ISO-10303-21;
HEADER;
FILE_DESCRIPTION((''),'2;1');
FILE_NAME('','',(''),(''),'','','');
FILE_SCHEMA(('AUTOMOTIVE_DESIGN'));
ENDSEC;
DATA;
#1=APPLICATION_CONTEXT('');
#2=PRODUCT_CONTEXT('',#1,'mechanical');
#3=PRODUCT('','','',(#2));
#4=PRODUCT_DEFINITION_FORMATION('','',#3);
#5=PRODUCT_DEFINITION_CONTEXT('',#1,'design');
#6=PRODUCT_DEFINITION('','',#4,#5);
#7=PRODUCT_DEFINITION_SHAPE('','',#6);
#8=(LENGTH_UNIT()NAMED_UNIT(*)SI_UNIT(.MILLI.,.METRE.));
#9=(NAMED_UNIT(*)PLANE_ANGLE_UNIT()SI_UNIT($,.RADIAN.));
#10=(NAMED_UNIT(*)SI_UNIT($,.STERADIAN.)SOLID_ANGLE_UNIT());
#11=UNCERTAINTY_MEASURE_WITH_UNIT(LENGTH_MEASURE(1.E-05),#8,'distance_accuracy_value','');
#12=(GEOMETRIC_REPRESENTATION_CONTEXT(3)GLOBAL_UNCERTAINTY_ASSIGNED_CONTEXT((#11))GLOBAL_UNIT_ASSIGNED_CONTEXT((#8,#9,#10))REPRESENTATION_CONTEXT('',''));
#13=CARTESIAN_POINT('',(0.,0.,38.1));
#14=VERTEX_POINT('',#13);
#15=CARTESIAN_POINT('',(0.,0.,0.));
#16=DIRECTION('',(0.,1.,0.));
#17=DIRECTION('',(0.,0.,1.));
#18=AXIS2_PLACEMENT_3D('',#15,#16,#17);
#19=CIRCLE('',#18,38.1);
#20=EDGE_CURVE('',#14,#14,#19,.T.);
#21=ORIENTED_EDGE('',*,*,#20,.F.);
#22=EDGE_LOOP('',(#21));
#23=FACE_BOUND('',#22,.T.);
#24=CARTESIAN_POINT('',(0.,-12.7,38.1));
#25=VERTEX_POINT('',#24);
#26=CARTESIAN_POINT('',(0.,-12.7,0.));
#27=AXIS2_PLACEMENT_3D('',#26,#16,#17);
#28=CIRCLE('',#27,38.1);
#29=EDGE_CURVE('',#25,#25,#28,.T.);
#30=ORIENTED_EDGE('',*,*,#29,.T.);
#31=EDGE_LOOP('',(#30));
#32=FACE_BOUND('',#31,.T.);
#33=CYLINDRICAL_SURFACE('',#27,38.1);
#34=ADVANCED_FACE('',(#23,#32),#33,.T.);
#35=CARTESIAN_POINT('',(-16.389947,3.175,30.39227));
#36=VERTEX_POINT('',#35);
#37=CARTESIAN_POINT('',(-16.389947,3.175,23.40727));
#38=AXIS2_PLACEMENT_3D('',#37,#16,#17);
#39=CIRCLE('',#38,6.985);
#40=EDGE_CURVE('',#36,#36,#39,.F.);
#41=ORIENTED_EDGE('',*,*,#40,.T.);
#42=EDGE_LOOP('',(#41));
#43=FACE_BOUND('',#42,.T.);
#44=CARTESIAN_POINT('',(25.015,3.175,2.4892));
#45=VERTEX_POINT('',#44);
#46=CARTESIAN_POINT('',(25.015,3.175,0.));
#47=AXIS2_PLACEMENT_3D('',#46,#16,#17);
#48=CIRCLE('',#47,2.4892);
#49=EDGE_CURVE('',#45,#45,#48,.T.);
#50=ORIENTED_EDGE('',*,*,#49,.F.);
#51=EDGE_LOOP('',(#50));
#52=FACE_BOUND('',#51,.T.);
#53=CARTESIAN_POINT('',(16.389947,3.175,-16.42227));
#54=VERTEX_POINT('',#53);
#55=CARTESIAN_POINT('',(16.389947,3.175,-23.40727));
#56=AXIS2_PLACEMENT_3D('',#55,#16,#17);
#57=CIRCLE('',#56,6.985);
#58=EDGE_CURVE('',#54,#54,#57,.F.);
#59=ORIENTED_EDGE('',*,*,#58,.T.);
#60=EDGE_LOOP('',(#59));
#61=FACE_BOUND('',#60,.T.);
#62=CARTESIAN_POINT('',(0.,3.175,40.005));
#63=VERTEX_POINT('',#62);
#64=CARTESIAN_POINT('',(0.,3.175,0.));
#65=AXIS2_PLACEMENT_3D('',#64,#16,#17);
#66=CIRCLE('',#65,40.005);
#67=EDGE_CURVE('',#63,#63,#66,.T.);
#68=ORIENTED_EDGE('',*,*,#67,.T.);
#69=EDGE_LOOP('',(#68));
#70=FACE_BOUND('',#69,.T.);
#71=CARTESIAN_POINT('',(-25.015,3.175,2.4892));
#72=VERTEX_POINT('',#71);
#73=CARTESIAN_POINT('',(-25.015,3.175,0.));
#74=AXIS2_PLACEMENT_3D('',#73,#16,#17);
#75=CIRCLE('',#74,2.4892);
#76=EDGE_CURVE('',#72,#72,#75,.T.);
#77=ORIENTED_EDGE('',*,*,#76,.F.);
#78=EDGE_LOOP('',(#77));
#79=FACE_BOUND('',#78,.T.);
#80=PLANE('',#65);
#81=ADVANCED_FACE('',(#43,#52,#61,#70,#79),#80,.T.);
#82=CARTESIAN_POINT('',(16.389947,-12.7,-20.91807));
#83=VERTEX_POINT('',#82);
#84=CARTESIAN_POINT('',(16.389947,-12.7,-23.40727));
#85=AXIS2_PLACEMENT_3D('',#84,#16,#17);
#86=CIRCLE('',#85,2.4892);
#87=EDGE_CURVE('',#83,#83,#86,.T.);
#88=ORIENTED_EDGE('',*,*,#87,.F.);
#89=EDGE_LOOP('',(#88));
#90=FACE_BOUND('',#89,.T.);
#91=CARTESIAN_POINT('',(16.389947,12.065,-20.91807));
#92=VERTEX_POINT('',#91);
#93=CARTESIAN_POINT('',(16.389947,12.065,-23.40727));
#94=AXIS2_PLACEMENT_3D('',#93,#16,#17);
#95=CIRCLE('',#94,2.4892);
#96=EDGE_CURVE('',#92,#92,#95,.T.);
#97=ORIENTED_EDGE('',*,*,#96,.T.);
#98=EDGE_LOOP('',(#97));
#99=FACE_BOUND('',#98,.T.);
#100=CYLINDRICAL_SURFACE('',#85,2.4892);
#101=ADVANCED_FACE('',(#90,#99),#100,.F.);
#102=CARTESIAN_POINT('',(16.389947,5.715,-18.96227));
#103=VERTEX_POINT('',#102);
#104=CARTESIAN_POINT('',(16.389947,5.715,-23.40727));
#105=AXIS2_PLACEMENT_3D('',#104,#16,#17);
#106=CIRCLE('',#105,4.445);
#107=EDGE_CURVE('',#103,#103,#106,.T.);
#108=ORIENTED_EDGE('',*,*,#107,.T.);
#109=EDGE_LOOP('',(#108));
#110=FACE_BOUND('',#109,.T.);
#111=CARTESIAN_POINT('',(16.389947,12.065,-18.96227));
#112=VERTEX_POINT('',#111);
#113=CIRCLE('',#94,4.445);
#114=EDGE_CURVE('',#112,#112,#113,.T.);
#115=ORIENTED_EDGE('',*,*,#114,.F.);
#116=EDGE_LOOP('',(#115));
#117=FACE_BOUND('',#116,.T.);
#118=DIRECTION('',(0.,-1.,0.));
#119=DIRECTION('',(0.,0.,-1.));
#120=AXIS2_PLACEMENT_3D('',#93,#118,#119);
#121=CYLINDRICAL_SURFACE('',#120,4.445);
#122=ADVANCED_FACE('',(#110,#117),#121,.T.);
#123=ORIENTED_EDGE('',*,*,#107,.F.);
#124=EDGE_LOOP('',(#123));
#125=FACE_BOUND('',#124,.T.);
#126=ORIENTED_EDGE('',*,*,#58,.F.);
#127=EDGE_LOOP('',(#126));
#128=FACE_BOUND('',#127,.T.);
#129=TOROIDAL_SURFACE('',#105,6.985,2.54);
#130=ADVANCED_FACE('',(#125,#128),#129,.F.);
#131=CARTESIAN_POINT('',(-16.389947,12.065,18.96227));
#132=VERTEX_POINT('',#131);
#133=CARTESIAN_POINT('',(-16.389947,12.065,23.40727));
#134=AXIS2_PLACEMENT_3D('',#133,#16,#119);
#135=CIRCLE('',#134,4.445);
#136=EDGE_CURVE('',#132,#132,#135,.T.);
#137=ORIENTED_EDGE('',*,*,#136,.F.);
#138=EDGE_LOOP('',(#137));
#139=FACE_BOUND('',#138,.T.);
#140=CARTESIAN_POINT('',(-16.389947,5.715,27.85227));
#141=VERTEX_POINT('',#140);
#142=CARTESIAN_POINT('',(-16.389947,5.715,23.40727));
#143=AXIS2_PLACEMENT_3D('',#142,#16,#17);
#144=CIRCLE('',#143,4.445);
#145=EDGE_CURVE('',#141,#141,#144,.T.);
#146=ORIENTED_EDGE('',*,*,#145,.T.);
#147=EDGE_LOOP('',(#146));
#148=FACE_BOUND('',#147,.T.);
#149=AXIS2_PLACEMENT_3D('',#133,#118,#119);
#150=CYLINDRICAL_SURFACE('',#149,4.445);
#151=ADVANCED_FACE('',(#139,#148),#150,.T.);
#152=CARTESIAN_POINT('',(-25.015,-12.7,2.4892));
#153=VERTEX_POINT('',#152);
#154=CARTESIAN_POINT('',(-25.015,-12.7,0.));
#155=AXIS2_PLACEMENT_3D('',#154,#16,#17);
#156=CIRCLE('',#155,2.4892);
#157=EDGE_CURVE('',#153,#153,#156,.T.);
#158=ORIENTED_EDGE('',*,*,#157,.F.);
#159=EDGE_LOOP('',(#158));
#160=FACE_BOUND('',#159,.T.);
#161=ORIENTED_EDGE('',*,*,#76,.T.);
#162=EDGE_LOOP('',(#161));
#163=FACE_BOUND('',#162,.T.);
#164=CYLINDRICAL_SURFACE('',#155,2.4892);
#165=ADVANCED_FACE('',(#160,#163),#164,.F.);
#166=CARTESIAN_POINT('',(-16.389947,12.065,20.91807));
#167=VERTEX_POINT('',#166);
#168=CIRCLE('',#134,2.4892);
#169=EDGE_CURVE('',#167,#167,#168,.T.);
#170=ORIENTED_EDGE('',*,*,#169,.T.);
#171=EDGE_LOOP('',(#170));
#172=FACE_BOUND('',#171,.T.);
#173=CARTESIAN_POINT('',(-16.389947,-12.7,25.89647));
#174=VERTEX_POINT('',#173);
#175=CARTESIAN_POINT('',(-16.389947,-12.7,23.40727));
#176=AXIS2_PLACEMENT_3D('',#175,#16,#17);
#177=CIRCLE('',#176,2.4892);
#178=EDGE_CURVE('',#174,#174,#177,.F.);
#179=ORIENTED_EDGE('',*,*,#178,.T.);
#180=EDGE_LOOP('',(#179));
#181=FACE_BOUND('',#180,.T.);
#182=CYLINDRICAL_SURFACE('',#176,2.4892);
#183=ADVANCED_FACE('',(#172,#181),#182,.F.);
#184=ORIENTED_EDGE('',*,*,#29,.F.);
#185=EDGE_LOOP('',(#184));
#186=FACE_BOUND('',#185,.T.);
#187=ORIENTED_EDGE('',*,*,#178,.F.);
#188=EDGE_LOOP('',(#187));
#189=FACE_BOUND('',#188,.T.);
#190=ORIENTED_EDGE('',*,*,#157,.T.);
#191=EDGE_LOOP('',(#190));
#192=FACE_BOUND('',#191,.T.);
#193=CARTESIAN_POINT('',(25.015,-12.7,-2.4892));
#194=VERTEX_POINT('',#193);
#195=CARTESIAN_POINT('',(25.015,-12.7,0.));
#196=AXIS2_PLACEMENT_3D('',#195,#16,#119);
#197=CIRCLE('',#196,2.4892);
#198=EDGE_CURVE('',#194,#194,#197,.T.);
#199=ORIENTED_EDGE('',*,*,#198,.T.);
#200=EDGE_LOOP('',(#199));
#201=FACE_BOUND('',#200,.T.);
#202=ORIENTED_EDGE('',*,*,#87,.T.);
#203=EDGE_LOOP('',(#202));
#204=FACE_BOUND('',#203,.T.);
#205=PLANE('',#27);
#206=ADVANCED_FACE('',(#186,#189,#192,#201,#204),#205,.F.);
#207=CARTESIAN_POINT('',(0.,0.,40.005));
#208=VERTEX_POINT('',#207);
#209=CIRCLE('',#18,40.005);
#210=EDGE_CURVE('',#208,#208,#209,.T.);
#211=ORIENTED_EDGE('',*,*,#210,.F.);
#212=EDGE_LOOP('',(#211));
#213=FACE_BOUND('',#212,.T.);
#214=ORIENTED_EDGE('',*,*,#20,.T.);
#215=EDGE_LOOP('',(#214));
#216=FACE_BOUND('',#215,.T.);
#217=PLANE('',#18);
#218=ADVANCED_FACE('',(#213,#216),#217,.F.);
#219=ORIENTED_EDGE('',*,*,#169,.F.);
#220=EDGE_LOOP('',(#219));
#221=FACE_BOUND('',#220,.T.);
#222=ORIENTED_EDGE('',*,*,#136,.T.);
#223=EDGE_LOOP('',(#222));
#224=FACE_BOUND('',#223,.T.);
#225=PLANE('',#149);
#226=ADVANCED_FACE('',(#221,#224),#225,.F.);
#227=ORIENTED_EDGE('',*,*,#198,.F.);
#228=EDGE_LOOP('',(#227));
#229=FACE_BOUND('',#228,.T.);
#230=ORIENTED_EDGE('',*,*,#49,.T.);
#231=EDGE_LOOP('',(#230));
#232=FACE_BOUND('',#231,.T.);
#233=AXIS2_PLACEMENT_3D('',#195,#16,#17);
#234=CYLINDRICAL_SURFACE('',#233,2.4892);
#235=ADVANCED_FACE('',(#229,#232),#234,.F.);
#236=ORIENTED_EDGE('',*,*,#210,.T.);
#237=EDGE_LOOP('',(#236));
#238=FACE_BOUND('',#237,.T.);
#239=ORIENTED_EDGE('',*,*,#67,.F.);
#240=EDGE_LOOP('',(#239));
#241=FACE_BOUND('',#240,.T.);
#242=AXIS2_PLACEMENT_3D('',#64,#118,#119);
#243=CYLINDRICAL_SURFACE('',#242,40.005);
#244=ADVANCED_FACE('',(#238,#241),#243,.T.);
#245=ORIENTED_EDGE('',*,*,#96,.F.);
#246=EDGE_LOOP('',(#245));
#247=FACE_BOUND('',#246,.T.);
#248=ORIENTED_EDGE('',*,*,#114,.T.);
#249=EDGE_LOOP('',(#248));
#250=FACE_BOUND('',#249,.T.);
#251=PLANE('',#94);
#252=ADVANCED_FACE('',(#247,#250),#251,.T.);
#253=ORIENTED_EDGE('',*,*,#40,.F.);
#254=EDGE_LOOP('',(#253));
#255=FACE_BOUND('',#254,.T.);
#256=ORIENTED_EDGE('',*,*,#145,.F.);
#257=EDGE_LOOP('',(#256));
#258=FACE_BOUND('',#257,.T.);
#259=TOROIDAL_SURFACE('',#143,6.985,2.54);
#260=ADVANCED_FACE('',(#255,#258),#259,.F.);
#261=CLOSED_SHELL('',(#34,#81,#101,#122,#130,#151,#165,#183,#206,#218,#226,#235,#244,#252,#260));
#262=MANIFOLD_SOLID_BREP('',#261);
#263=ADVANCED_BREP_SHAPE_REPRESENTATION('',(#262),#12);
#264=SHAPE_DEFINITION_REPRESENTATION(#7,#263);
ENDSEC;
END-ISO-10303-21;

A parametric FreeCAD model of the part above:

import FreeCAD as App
import Part
import Sketcher
from FreeCAD import Vector
Q = App.Units.Quantity


def edges_at(feature, points):
    """Names of the edges that pass closest to the given points."""
    edges = feature.Shape.Edges
    near = lambda p: min(range(len(edges)), key=lambda i: edges[i].distToShape(Part.Vertex(*p))[0])
    return sorted({f"Edge{near(p) + 1}" for p in points})

doc = App.newDocument("Part")
body = doc.addObject("PartDesign::Body", "Body")

# Sketch on XZ plane
sketch1 = doc.addObject("Sketcher::SketchObject", "Sketch")
body.addObject(sketch1)
sketch1.AttachmentSupport = (doc.XZ_Plane, [""])
sketch1.MapMode = "FlatFace"
sketch1.addGeometry(Part.Circle(Vector(0, 0, 0), Vector(0, 0, 1), 40), False)
sketch1.addConstraint([
    Sketcher.Constraint("Coincident", 0, 3, -1, 1),
    Sketcher.Constraint("Diameter", 0, Q("3.15 in")),
])
pad1 = doc.addObject("PartDesign::Pad", "Pad")
body.addObject(pad1)
pad1.Profile = sketch1
pad1.Length = Q("0.125 in")
pad1.Reversed = True

# Sketch on XZ plane
sketch2 = doc.addObject("Sketcher::SketchObject", "Sketch001")
body.addObject(sketch2)
sketch2.AttachmentSupport = (doc.XZ_Plane, [""])
sketch2.MapMode = "FlatFace"
sketch2.addGeometry(Part.Circle(Vector(0, 0, 0), Vector(0, 0, 1), 38), False)
sketch2.addConstraint([
    Sketcher.Constraint("Coincident", 0, 3, -1, 1),
    Sketcher.Constraint("Diameter", 0, Q("3 in")),
])
pad2 = doc.addObject("PartDesign::Pad", "Pad001")
body.addObject(pad2)
pad2.Profile = sketch2
pad2.Length = Q("0.5 in")

# Sketch on XZ plane
sketch3 = doc.addObject("Sketcher::SketchObject", "Sketch002")
body.addObject(sketch3)
sketch3.AttachmentSupport = (doc.XZ_Plane, [""])
sketch3.MapMode = "FlatFace"
sketch3.AttachmentOffset = App.Placement(Vector(0, 0, -0.125 * 25.4), App.Rotation())
sketch3.addGeometry([
    Part.Circle(Vector(-25, 0, 0), Vector(0, 0, 1), 2.5),
    Part.Circle(Vector(25, 0, 0), Vector(0, 0, 1), 2.5),
], False)
sketch3.addConstraint([
    Sketcher.Constraint("Equal", 0, 1),
    Sketcher.Constraint("Symmetric", 0, 3, 1, 3, -1, 1),
    Sketcher.Constraint("PointOnObject", 0, 3, -1),
    Sketcher.Constraint("Diameter", 0, Q("0.196 in")),
    Sketcher.Constraint("DistanceX", 0, 3, -1, 1, 25.015),
])
pocket1 = doc.addObject("PartDesign::Pocket", "Pocket")
body.addObject(pocket1)
pocket1.Profile = sketch3
pocket1.Type = "ThroughAll"
pocket1.Midplane = True

# Sketch on XZ plane
sketch4 = doc.addObject("Sketcher::SketchObject", "Sketch003")
body.addObject(sketch4)
sketch4.AttachmentSupport = (doc.XZ_Plane, [""])
sketch4.MapMode = "FlatFace"
sketch4.AttachmentOffset = App.Placement(Vector(0, 0, -0.125 * 25.4), App.Rotation())
sketch4.addGeometry([
    Part.Circle(Vector(-16.4, 23.4, 0), Vector(0, 0, 1), 2.5),
    Part.Circle(Vector(16.4, -23.4, 0), Vector(0, 0, 1), 2.5),
], False)
sketch4.addConstraint([
    Sketcher.Constraint("Equal", 0, 1),
    Sketcher.Constraint("Symmetric", 0, 3, 1, 3, -1, 1),
    Sketcher.Constraint("Diameter", 0, Q("0.196 in")),
    Sketcher.Constraint("DistanceY", -1, 1, 0, 3, 23.40727),
    Sketcher.Constraint("DistanceX", 0, 3, -1, 1, 16.389947),
])
pocket2 = doc.addObject("PartDesign::Pocket", "Pocket001")
body.addObject(pocket2)
pocket2.Profile = sketch4
pocket2.Type = "ThroughAll"
pocket2.Midplane = True

# Sketch on XZ plane
sketch5 = doc.addObject("Sketcher::SketchObject", "Sketch004")
body.addObject(sketch5)
sketch5.AttachmentSupport = (doc.XZ_Plane, [""])
sketch5.MapMode = "FlatFace"
sketch5.AttachmentOffset = App.Placement(Vector(0, 0, -0.475 * 25.4), App.Rotation())
sketch5.addGeometry([
    Part.Circle(Vector(16.4, -23.4, 0), Vector(0, 0, 1), 4.4),
    Part.Circle(Vector(16.4, -23.4, 0), Vector(0, 0, 1), 2.5),
    Part.Circle(Vector(-16.4, 23.4, 0), Vector(0, 0, 1), 4.4),
    Part.Circle(Vector(-16.4, 23.4, 0), Vector(0, 0, 1), 2.5),
], False)
sketch5.addConstraint([
    Sketcher.Constraint("Coincident", 1, 3, 0, 3),
    Sketcher.Constraint("Coincident", 3, 3, 2, 3),
    Sketcher.Constraint("Equal", 0, 2),
    Sketcher.Constraint("Equal", 1, 3),
    Sketcher.Constraint("Symmetric", 0, 3, 2, 3, -1, 1),
    Sketcher.Constraint("Diameter", 0, Q("0.35 in")),
    Sketcher.Constraint("Diameter", 1, Q("0.196 in")),
    Sketcher.Constraint("DistanceY", 0, 3, -1, 1, 23.40727),
    Sketcher.Constraint("DistanceX", -1, 1, 0, 3, 16.389947),
])
pad3 = doc.addObject("PartDesign::Pad", "Pad002")
body.addObject(pad3)
pad3.Profile = sketch5
pad3.Length = Q("0.35 in")
doc.recompute()

fillet = doc.addObject("PartDesign::Fillet", "Fillet")
body.addObject(fillet)
fillet.Base = (pad3, edges_at(pad3, [(16.39, 3.175, -27.852), (-16.39, 3.175, 27.852)]))
fillet.Radius = Q("0.1 in")

doc.recompute()
